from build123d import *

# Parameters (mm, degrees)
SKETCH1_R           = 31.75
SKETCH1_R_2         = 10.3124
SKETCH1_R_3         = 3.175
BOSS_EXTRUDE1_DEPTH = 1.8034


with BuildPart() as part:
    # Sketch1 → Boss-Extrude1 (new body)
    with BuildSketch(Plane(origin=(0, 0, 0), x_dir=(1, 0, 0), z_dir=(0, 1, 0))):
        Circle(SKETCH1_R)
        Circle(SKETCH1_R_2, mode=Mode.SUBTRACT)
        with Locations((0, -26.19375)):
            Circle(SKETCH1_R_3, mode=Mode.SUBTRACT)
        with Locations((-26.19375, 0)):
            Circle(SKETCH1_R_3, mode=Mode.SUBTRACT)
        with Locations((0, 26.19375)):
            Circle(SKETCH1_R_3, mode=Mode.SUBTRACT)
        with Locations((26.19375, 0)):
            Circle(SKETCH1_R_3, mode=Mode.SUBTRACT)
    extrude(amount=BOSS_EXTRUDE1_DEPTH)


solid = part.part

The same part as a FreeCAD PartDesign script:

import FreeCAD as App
import Part
import Sketcher
from FreeCAD import Vector
Q = App.Units.Quantity

doc = App.newDocument("Part")
params = doc.addObject("Spreadsheet::Sheet", "Params")
for row, (alias, value) in enumerate([
    ("sketch1_diameter", "2.5 in"),
    ("sketch1_diameter2", "0.25 in"),
    ("sketch1_diameter3", "0.812 in"),
    ("pad1_length", "0.071 in"),
], start=1):
    params.set(f"A{row}", alias)
    params.set(f"B{row}", "=" + value)
    params.setAlias(f"B{row}", alias)

body = doc.addObject("PartDesign::Body", "Body")

sketch1 = body.newObject("Sketcher::SketchObject", "Sketch")
sketch1.AttachmentSupport = (doc.getObject("XZ_Plane"), [""])
sketch1.MapMode = "FlatFace"
sketch1.addGeometry(Part.Circle(Vector(0, 0, 0), Vector(0, 0, 1), 31.8), False)
sketch1.addGeometry(Part.Circle(Vector(0, 26.2, 0), Vector(0, 0, 1), 3.2), False)
sketch1.addGeometry(Part.Circle(Vector(0, 0, 0), Vector(0, 0, 1), 10.3), False)
sketch1.addGeometry(Part.Circle(Vector(-26.2, 0, 0), Vector(0, 0, 1), 3.2), False)
sketch1.addGeometry(Part.Circle(Vector(26.2, 0, 0), Vector(0, 0, 1), 3.2), False)
sketch1.addGeometry(Part.Circle(Vector(0, -26.2, 0), Vector(0, 0, 1), 3.2), False)
sketch1.addConstraint(Sketcher.Constraint("Coincident", 0, 3, -1, 1))
sketch1.addConstraint(Sketcher.Constraint("Coincident", 2, 3, -1, 1))
sketch1.addConstraint(Sketcher.Constraint("Equal", 1, 3))
sketch1.addConstraint(Sketcher.Constraint("Equal", 3, 4))
sketch1.addConstraint(Sketcher.Constraint("Equal", 4, 5))
sketch1.addConstraint(Sketcher.Constraint("Symmetric", 3, 3, 4, 3, -1, 1))
sketch1.addConstraint(Sketcher.Constraint("Symmetric", 1, 3, 5, 3, -1, 1))
sketch1.addConstraint(Sketcher.Constraint("PointOnObject", 1, 3, -2))
sketch1.addConstraint(Sketcher.Constraint("PointOnObject", 3, 3, -1))
sketch1.addConstraint(Sketcher.Constraint("Diameter", 0, Q("2.5 in")))
sketch1.addConstraint(Sketcher.Constraint("Diameter", 1, Q("0.25 in")))
sketch1.addConstraint(Sketcher.Constraint("Diameter", 2, Q("0.812 in")))
sketch1.addConstraint(Sketcher.Constraint("DistanceY", -1, 1, 1, 3, Q("1.03125 in")))
sketch1.addConstraint(Sketcher.Constraint("DistanceX", 3, 3, -1, 1, Q("1.03125 in")))
sketch1.setExpression("Constraints[9]", "Params.sketch1_diameter")
sketch1.setExpression("Constraints[10]", "Params.sketch1_diameter2")
sketch1.setExpression("Constraints[11]", "Params.sketch1_diameter3")
pad1 = body.newObject("PartDesign::Pad", "Pad")
pad1.Profile = sketch1
pad1.setExpression("Length", "Params.pad1_length")
pad1.Reversed = True

doc.recompute()
